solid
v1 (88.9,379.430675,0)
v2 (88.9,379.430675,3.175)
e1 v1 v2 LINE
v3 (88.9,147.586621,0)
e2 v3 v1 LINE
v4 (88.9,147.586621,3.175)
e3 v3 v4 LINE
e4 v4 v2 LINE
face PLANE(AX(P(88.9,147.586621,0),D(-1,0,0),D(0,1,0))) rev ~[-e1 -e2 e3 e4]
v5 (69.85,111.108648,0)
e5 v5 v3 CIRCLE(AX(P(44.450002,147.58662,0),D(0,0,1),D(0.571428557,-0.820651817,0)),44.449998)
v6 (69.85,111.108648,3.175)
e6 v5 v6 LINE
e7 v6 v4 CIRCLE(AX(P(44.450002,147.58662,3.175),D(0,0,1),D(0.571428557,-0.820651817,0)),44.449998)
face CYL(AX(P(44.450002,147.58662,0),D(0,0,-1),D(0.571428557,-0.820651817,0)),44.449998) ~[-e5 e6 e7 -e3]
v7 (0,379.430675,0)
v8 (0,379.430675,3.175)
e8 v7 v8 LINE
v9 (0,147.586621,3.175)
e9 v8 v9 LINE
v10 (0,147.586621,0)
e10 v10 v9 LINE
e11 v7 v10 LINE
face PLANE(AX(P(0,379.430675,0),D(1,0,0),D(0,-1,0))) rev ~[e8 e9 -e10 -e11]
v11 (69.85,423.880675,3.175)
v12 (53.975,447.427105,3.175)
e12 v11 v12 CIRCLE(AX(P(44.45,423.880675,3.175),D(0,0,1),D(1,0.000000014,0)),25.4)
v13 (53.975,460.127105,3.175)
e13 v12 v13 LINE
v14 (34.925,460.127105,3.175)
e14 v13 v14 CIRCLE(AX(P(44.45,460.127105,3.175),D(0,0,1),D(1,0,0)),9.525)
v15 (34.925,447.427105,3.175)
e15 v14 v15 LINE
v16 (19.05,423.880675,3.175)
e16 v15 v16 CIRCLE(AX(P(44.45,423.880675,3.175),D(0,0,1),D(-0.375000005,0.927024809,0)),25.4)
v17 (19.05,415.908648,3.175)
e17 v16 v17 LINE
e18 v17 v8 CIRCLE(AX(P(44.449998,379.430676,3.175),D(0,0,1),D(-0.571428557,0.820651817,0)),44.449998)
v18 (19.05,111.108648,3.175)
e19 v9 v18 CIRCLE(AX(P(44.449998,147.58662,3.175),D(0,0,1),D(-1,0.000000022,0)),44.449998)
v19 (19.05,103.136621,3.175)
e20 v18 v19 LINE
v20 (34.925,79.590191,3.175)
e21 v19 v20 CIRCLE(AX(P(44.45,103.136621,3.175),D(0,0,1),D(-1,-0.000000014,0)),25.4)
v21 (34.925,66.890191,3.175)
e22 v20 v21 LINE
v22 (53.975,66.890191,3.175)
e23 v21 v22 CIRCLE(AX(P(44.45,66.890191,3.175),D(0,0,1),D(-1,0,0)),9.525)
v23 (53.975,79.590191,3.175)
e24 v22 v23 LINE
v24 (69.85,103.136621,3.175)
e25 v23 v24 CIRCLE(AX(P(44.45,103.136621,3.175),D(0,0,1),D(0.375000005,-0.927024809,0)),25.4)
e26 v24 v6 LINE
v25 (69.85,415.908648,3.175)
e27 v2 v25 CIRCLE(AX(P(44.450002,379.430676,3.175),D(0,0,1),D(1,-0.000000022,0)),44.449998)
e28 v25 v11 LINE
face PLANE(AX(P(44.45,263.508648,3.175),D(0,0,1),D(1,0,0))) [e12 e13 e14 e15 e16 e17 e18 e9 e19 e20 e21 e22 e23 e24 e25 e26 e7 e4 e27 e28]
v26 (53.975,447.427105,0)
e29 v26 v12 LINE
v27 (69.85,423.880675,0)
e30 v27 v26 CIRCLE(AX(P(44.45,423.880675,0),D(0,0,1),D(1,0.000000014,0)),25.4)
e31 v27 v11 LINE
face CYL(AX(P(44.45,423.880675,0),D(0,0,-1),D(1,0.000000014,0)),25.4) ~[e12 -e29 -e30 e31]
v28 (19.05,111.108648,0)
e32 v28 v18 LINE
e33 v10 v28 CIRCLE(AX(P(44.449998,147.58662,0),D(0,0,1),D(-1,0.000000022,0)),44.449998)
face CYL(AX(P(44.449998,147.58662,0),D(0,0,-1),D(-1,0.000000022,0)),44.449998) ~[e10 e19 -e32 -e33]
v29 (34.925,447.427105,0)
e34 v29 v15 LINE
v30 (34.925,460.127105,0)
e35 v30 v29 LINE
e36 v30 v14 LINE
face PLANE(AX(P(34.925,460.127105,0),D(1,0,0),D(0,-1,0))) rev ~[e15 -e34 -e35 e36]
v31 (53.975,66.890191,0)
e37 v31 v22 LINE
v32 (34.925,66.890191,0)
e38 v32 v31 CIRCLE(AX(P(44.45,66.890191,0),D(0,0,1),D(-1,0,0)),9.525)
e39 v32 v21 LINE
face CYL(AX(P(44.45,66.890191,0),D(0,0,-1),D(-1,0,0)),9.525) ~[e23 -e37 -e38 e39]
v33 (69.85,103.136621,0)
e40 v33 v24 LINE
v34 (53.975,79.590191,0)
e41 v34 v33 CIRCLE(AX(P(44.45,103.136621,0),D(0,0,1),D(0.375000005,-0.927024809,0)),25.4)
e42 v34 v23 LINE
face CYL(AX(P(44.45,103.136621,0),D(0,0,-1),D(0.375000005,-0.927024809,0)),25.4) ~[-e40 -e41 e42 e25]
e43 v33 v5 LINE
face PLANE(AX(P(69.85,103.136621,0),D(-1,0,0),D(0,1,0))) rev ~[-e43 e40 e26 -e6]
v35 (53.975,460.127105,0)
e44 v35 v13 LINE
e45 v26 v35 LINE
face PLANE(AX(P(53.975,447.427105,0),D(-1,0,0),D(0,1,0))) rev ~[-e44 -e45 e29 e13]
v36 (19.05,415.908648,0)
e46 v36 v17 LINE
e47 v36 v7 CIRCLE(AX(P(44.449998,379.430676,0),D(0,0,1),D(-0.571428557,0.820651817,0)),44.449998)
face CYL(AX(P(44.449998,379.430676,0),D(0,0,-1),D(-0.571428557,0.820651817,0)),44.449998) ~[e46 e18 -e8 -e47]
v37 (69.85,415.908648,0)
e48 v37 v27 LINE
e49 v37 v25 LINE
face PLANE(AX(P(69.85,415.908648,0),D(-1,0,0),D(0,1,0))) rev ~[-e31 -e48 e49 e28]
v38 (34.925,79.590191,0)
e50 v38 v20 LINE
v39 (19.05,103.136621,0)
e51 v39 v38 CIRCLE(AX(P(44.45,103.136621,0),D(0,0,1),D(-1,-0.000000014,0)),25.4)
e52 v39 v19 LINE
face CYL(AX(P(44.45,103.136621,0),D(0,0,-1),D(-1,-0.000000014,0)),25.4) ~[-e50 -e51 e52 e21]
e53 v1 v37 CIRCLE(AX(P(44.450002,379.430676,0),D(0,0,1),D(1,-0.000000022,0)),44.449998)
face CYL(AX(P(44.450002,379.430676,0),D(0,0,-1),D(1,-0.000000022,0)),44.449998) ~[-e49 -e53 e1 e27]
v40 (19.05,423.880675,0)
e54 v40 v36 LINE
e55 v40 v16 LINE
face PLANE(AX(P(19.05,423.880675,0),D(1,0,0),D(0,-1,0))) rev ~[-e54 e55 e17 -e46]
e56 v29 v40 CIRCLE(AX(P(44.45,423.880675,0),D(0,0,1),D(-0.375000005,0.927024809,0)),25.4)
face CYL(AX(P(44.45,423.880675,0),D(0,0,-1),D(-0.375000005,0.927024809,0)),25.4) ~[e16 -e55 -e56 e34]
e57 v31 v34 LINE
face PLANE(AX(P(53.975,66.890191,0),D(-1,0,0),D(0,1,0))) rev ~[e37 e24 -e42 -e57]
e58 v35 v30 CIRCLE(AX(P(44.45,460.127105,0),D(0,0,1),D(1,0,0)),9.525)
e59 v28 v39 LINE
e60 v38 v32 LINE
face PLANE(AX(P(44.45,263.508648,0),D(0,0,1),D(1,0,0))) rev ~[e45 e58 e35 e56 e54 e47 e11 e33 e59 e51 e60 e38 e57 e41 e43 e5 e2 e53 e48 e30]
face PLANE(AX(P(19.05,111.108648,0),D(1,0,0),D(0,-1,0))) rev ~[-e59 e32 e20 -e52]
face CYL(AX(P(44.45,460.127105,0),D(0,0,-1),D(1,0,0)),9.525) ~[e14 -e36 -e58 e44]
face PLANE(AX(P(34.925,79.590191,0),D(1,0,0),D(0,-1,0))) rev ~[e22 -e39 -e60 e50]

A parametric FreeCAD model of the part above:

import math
import FreeCAD as App
import Part
import Sketcher

V = App.Vector
Q = App.Units.Quantity

doc = App.newDocument("Part")
body = doc.addObject("PartDesign::Body", "Body")

# Sketch on XY plane
sketch1 = body.newObject("Sketcher::SketchObject", "Sketch")
sketch1.AttachmentSupport = (doc.getObject("XY_Plane"), [""])
sketch1.MapMode = "FlatFace"
sketch1.addGeometry([
    Part.ArcOfCircle(Part.Circle(V(44, 148, 0), V(0, 0, 1), 44), math.radians(180), math.radians(235)),  # 0
    Part.LineSegment(V(19, 111, 0), V(19, 103, 0)),  # 1
    Part.ArcOfCircle(Part.Circle(V(44, 103, 0), V(0, 0, 1), 25), math.radians(-180), math.radians(-112)),  # 2
    Part.LineSegment(V(35, 80, 0), V(35, 67, 0)),  # 3
    Part.ArcOfCircle(Part.Circle(V(44, 67, 0), V(0, 0, 1), 10), math.radians(180), math.radians(360)),  # 4
    Part.LineSegment(V(54, 67, 0), V(54, 80, 0)),  # 5
    Part.ArcOfCircle(Part.Circle(V(44, 103, 0), V(0, 0, 1), 25), math.radians(-68), math.radians(0)),  # 6
    Part.LineSegment(V(70, 103, 0), V(70, 111, 0)),  # 7
    Part.ArcOfCircle(Part.Circle(V(44, 148, 0), V(0, 0, 1), 44), math.radians(-55), math.radians(0)),  # 8
    Part.LineSegment(V(89, 148, 0), V(89, 379, 0)),  # 9
    Part.ArcOfCircle(Part.Circle(V(44, 379, 0), V(0, 0, 1), 44), math.radians(0), math.radians(55)),  # 10
    Part.LineSegment(V(70, 416, 0), V(70, 424, 0)),  # 11
    Part.ArcOfCircle(Part.Circle(V(44, 424, 0), V(0, 0, 1), 25), math.radians(0), math.radians(68)),  # 12
    Part.LineSegment(V(54, 447, 0), V(54, 460, 0)),  # 13
    Part.ArcOfCircle(Part.Circle(V(44, 460, 0), V(0, 0, 1), 10), math.radians(0), math.radians(180)),  # 14
    Part.LineSegment(V(35, 460, 0), V(35, 447, 0)),  # 15
    Part.ArcOfCircle(Part.Circle(V(44, 424, 0), V(0, 0, 1), 25), math.radians(112), math.radians(180)),  # 16
    Part.LineSegment(V(19, 424, 0), V(19, 416, 0)),  # 17
    Part.ArcOfCircle(Part.Circle(V(44, 379, 0), V(0, 0, 1), 44), math.radians(125), math.radians(180)),  # 18
    Part.LineSegment(V(0, 379, 0), V(0, 148, 0)),  # 19
], False)
sketch1.addConstraint([
    Sketcher.Constraint("Coincident", 0, 2, 1, 1),
    Sketcher.Constraint("Tangent", 1, 2, 2, 1),
    Sketcher.Constraint("Coincident", 2, 2, 3, 1),
    Sketcher.Constraint("Tangent", 3, 2, 4, 1),
    Sketcher.Constraint("Tangent", 4, 2, 5, 1),
    Sketcher.Constraint("Coincident", 5, 2, 6, 1),
    Sketcher.Constraint("Tangent", 6, 2, 7, 1),
    Sketcher.Constraint("Coincident", 7, 2, 8, 1),
    Sketcher.Constraint("Tangent", 8, 2, 9, 1),
    Sketcher.Constraint("Tangent", 9, 2, 10, 1),
    Sketcher.Constraint("Coincident", 10, 2, 11, 1),
    Sketcher.Constraint("Tangent", 11, 2, 12, 1),
    Sketcher.Constraint("Coincident", 12, 2, 13, 1),
    Sketcher.Constraint("Tangent", 13, 2, 14, 1),
    Sketcher.Constraint("Tangent", 14, 2, 15, 1),
    Sketcher.Constraint("Coincident", 15, 2, 16, 1),
    Sketcher.Constraint("Tangent", 16, 2, 17, 1),
    Sketcher.Constraint("Coincident", 17, 2, 18, 1),
    Sketcher.Constraint("Tangent", 18, 2, 19, 1),
    Sketcher.Constraint("Tangent", 19, 2, 0, 1),
    Sketcher.Constraint("Vertical", 1),
    Sketcher.Constraint("Vertical", 3),
    Sketcher.Constraint("Vertical", 5),
    Sketcher.Constraint("Vertical", 7),
    Sketcher.Constraint("Vertical", 9),
    Sketcher.Constraint("Vertical", 11),
    Sketcher.Constraint("Vertical", 13),
    Sketcher.Constraint("Vertical", 15),
    Sketcher.Constraint("Vertical", 17),
    Sketcher.Constraint("Vertical", 19),
    Sketcher.Constraint("Coincident", 6, 3, 2, 3),
    Sketcher.Constraint("Coincident", 8, 3, 0, 3),
    Sketcher.Constraint("Coincident", 16, 3, 12, 3),
    Sketcher.Constraint("Coincident", 18, 3, 10, 3),
    Sketcher.Constraint("Equal", 2, 6),
    Sketcher.Constraint("Equal", 0, 8),
    Sketcher.Constraint("Equal", 8, 10),
    Sketcher.Constraint("Equal", 6, 12),
    Sketcher.Constraint("Equal", 4, 14),
    Sketcher.Constraint("Equal", 12, 16),
    Sketcher.Constraint("PointOnObject", 18, 2, -2),
    Sketcher.Constraint("Horizontal", 2, 2, 5, 2),
    Sketcher.Constraint("Horizontal", 0, 2, 7, 2),
    Sketcher.Constraint("Horizontal", 12, 2, 15, 2),
    Sketcher.Constraint("Horizontal", 10, 2, 17, 2),
    Sketcher.Constraint("Equal", 7, 11),
    Sketcher.Constraint("Equal", 5, 13),
    Sketcher.Constraint("Radius", 2, Q("1 in")),
    Sketcher.Constraint("Radius", 0, Q("1.7499999 in")),
    Sketcher.Constraint("DistanceY", 3, 2, 3, 1, Q("0.5 in")),
    Sketcher.Constraint("Radius", 4, Q("0.375 in")),
    Sketcher.Constraint("DistanceY", 2, 3, 0, 3, Q("1.7499999 in")),
    Sketcher.Constraint("DistanceY", 9, 1, 9, 2, 231.844054),
    Sketcher.Constraint("DistanceY", -1, 1, 0, 3, 147.58662),
])
pad1 = body.newObject("PartDesign::Pad", "Pad")
pad1.Profile = sketch1
pad1.Length = Q("0.125 in")

doc.recompute()
